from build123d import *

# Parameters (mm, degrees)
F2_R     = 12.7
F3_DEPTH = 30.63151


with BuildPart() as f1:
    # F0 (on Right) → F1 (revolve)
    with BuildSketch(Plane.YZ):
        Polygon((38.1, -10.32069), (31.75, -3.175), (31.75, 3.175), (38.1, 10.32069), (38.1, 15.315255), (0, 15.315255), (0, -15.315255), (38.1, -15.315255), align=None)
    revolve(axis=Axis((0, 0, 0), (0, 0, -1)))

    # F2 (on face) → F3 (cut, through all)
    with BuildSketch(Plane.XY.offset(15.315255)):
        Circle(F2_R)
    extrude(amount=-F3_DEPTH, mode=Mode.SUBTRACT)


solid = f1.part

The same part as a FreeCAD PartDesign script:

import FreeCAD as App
import Part
import Sketcher

V = App.Vector
Q = App.Units.Quantity

doc = App.newDocument("Part")
body = doc.addObject("PartDesign::Body", "Body")

# Sketch on YZ plane
sketch1 = body.newObject("Sketcher::SketchObject", "Sketch")
sketch1.AttachmentSupport = (doc.getObject("YZ_Plane"), [""])
sketch1.MapMode = "FlatFace"
sketch1.addGeometry([
    Part.LineSegment(V(38.1, -10.3, 0), V(31.8, -3.2, 0)),  # 0
    Part.LineSegment(V(31.8, -3.2, 0), V(31.8, 3.2, 0)),  # 1
    Part.LineSegment(V(31.8, 3.2, 0), V(38.1, 10.3, 0)),  # 2
    Part.LineSegment(V(38.1, 10.3, 0), V(38.1, 15.3, 0)),  # 3
    Part.LineSegment(V(38.1, 15.3, 0), V(0, 15.3, 0)),  # 4
    Part.LineSegment(V(0, 15.3, 0), V(0, -15.3, 0)),  # 5
    Part.LineSegment(V(0, -15.3, 0), V(38.1, -15.3, 0)),  # 6
    Part.LineSegment(V(38.1, -15.3, 0), V(38.1, -10.3, 0)),  # 7
], False)
sketch1.addConstraint([
    Sketcher.Constraint("Coincident", 0, 2, 1, 1),
    Sketcher.Constraint("Coincident", 1, 2, 2, 1),
    Sketcher.Constraint("Coincident", 2, 2, 3, 1),
    Sketcher.Constraint("Coincident", 3, 2, 4, 1),
    Sketcher.Constraint("Coincident", 4, 2, 5, 1),
    Sketcher.Constraint("Coincident", 5, 2, 6, 1),
    Sketcher.Constraint("Coincident", 6, 2, 7, 1),
    Sketcher.Constraint("Coincident", 7, 2, 0, 1),
    Sketcher.Constraint("Vertical", 1),
    Sketcher.Constraint("Vertical", 3),
    Sketcher.Constraint("Horizontal", 4),
    Sketcher.Constraint("Vertical", 5),
    Sketcher.Constraint("Horizontal", 6),
    Sketcher.Constraint("Vertical", 7),
    Sketcher.Constraint("Symmetric", 4, 2, 5, 2, -1, 1),
    Sketcher.Constraint("Symmetric", 2, 2, 7, 2, -1),
    Sketcher.Constraint("Equal", 0, 2),
    Sketcher.Constraint("DistanceX", 4, 2, 4, 1, Q("1.5 in")),
    Sketcher.Constraint("DistanceY", 1, 1, 1, 2, Q("0.25 in")),
    Sketcher.Constraint("DistanceX", -1, 1, 0, 2, Q("1.25 in")),
    Sketcher.Constraint("DistanceY", 5, 2, 5, 1, 30.63051),
    Sketcher.Constraint("DistanceY", 3, 1, 3, 2, 4.994565),
])
revolution = body.newObject("PartDesign::Revolution", "Revolution")
revolution.Profile = sketch1
revolution.ReferenceAxis = (sketch1, ["V_Axis"])
revolution.Angle = 360

# Sketch on XY plane
sketch2 = body.newObject("Sketcher::SketchObject", "Sketch001")
sketch2.AttachmentSupport = (doc.getObject("XY_Plane"), [""])
sketch2.MapMode = "FlatFace"
sketch2.AttachmentOffset = App.Placement(V(0, 0, 15.315255), App.Rotation())
sketch2.addGeometry(Part.Circle(V(0, 0, 0), V(0, 0, 1), 13), False)
sketch2.addConstraint([
    Sketcher.Constraint("Coincident", 0, 3, -1, 1),
    Sketcher.Constraint("Diameter", 0, Q("1 in")),
])
pocket1 = body.newObject("PartDesign::Pocket", "Pocket")
pocket1.Profile = sketch2
pocket1.Type = "ThroughAll"

doc.recompute()
